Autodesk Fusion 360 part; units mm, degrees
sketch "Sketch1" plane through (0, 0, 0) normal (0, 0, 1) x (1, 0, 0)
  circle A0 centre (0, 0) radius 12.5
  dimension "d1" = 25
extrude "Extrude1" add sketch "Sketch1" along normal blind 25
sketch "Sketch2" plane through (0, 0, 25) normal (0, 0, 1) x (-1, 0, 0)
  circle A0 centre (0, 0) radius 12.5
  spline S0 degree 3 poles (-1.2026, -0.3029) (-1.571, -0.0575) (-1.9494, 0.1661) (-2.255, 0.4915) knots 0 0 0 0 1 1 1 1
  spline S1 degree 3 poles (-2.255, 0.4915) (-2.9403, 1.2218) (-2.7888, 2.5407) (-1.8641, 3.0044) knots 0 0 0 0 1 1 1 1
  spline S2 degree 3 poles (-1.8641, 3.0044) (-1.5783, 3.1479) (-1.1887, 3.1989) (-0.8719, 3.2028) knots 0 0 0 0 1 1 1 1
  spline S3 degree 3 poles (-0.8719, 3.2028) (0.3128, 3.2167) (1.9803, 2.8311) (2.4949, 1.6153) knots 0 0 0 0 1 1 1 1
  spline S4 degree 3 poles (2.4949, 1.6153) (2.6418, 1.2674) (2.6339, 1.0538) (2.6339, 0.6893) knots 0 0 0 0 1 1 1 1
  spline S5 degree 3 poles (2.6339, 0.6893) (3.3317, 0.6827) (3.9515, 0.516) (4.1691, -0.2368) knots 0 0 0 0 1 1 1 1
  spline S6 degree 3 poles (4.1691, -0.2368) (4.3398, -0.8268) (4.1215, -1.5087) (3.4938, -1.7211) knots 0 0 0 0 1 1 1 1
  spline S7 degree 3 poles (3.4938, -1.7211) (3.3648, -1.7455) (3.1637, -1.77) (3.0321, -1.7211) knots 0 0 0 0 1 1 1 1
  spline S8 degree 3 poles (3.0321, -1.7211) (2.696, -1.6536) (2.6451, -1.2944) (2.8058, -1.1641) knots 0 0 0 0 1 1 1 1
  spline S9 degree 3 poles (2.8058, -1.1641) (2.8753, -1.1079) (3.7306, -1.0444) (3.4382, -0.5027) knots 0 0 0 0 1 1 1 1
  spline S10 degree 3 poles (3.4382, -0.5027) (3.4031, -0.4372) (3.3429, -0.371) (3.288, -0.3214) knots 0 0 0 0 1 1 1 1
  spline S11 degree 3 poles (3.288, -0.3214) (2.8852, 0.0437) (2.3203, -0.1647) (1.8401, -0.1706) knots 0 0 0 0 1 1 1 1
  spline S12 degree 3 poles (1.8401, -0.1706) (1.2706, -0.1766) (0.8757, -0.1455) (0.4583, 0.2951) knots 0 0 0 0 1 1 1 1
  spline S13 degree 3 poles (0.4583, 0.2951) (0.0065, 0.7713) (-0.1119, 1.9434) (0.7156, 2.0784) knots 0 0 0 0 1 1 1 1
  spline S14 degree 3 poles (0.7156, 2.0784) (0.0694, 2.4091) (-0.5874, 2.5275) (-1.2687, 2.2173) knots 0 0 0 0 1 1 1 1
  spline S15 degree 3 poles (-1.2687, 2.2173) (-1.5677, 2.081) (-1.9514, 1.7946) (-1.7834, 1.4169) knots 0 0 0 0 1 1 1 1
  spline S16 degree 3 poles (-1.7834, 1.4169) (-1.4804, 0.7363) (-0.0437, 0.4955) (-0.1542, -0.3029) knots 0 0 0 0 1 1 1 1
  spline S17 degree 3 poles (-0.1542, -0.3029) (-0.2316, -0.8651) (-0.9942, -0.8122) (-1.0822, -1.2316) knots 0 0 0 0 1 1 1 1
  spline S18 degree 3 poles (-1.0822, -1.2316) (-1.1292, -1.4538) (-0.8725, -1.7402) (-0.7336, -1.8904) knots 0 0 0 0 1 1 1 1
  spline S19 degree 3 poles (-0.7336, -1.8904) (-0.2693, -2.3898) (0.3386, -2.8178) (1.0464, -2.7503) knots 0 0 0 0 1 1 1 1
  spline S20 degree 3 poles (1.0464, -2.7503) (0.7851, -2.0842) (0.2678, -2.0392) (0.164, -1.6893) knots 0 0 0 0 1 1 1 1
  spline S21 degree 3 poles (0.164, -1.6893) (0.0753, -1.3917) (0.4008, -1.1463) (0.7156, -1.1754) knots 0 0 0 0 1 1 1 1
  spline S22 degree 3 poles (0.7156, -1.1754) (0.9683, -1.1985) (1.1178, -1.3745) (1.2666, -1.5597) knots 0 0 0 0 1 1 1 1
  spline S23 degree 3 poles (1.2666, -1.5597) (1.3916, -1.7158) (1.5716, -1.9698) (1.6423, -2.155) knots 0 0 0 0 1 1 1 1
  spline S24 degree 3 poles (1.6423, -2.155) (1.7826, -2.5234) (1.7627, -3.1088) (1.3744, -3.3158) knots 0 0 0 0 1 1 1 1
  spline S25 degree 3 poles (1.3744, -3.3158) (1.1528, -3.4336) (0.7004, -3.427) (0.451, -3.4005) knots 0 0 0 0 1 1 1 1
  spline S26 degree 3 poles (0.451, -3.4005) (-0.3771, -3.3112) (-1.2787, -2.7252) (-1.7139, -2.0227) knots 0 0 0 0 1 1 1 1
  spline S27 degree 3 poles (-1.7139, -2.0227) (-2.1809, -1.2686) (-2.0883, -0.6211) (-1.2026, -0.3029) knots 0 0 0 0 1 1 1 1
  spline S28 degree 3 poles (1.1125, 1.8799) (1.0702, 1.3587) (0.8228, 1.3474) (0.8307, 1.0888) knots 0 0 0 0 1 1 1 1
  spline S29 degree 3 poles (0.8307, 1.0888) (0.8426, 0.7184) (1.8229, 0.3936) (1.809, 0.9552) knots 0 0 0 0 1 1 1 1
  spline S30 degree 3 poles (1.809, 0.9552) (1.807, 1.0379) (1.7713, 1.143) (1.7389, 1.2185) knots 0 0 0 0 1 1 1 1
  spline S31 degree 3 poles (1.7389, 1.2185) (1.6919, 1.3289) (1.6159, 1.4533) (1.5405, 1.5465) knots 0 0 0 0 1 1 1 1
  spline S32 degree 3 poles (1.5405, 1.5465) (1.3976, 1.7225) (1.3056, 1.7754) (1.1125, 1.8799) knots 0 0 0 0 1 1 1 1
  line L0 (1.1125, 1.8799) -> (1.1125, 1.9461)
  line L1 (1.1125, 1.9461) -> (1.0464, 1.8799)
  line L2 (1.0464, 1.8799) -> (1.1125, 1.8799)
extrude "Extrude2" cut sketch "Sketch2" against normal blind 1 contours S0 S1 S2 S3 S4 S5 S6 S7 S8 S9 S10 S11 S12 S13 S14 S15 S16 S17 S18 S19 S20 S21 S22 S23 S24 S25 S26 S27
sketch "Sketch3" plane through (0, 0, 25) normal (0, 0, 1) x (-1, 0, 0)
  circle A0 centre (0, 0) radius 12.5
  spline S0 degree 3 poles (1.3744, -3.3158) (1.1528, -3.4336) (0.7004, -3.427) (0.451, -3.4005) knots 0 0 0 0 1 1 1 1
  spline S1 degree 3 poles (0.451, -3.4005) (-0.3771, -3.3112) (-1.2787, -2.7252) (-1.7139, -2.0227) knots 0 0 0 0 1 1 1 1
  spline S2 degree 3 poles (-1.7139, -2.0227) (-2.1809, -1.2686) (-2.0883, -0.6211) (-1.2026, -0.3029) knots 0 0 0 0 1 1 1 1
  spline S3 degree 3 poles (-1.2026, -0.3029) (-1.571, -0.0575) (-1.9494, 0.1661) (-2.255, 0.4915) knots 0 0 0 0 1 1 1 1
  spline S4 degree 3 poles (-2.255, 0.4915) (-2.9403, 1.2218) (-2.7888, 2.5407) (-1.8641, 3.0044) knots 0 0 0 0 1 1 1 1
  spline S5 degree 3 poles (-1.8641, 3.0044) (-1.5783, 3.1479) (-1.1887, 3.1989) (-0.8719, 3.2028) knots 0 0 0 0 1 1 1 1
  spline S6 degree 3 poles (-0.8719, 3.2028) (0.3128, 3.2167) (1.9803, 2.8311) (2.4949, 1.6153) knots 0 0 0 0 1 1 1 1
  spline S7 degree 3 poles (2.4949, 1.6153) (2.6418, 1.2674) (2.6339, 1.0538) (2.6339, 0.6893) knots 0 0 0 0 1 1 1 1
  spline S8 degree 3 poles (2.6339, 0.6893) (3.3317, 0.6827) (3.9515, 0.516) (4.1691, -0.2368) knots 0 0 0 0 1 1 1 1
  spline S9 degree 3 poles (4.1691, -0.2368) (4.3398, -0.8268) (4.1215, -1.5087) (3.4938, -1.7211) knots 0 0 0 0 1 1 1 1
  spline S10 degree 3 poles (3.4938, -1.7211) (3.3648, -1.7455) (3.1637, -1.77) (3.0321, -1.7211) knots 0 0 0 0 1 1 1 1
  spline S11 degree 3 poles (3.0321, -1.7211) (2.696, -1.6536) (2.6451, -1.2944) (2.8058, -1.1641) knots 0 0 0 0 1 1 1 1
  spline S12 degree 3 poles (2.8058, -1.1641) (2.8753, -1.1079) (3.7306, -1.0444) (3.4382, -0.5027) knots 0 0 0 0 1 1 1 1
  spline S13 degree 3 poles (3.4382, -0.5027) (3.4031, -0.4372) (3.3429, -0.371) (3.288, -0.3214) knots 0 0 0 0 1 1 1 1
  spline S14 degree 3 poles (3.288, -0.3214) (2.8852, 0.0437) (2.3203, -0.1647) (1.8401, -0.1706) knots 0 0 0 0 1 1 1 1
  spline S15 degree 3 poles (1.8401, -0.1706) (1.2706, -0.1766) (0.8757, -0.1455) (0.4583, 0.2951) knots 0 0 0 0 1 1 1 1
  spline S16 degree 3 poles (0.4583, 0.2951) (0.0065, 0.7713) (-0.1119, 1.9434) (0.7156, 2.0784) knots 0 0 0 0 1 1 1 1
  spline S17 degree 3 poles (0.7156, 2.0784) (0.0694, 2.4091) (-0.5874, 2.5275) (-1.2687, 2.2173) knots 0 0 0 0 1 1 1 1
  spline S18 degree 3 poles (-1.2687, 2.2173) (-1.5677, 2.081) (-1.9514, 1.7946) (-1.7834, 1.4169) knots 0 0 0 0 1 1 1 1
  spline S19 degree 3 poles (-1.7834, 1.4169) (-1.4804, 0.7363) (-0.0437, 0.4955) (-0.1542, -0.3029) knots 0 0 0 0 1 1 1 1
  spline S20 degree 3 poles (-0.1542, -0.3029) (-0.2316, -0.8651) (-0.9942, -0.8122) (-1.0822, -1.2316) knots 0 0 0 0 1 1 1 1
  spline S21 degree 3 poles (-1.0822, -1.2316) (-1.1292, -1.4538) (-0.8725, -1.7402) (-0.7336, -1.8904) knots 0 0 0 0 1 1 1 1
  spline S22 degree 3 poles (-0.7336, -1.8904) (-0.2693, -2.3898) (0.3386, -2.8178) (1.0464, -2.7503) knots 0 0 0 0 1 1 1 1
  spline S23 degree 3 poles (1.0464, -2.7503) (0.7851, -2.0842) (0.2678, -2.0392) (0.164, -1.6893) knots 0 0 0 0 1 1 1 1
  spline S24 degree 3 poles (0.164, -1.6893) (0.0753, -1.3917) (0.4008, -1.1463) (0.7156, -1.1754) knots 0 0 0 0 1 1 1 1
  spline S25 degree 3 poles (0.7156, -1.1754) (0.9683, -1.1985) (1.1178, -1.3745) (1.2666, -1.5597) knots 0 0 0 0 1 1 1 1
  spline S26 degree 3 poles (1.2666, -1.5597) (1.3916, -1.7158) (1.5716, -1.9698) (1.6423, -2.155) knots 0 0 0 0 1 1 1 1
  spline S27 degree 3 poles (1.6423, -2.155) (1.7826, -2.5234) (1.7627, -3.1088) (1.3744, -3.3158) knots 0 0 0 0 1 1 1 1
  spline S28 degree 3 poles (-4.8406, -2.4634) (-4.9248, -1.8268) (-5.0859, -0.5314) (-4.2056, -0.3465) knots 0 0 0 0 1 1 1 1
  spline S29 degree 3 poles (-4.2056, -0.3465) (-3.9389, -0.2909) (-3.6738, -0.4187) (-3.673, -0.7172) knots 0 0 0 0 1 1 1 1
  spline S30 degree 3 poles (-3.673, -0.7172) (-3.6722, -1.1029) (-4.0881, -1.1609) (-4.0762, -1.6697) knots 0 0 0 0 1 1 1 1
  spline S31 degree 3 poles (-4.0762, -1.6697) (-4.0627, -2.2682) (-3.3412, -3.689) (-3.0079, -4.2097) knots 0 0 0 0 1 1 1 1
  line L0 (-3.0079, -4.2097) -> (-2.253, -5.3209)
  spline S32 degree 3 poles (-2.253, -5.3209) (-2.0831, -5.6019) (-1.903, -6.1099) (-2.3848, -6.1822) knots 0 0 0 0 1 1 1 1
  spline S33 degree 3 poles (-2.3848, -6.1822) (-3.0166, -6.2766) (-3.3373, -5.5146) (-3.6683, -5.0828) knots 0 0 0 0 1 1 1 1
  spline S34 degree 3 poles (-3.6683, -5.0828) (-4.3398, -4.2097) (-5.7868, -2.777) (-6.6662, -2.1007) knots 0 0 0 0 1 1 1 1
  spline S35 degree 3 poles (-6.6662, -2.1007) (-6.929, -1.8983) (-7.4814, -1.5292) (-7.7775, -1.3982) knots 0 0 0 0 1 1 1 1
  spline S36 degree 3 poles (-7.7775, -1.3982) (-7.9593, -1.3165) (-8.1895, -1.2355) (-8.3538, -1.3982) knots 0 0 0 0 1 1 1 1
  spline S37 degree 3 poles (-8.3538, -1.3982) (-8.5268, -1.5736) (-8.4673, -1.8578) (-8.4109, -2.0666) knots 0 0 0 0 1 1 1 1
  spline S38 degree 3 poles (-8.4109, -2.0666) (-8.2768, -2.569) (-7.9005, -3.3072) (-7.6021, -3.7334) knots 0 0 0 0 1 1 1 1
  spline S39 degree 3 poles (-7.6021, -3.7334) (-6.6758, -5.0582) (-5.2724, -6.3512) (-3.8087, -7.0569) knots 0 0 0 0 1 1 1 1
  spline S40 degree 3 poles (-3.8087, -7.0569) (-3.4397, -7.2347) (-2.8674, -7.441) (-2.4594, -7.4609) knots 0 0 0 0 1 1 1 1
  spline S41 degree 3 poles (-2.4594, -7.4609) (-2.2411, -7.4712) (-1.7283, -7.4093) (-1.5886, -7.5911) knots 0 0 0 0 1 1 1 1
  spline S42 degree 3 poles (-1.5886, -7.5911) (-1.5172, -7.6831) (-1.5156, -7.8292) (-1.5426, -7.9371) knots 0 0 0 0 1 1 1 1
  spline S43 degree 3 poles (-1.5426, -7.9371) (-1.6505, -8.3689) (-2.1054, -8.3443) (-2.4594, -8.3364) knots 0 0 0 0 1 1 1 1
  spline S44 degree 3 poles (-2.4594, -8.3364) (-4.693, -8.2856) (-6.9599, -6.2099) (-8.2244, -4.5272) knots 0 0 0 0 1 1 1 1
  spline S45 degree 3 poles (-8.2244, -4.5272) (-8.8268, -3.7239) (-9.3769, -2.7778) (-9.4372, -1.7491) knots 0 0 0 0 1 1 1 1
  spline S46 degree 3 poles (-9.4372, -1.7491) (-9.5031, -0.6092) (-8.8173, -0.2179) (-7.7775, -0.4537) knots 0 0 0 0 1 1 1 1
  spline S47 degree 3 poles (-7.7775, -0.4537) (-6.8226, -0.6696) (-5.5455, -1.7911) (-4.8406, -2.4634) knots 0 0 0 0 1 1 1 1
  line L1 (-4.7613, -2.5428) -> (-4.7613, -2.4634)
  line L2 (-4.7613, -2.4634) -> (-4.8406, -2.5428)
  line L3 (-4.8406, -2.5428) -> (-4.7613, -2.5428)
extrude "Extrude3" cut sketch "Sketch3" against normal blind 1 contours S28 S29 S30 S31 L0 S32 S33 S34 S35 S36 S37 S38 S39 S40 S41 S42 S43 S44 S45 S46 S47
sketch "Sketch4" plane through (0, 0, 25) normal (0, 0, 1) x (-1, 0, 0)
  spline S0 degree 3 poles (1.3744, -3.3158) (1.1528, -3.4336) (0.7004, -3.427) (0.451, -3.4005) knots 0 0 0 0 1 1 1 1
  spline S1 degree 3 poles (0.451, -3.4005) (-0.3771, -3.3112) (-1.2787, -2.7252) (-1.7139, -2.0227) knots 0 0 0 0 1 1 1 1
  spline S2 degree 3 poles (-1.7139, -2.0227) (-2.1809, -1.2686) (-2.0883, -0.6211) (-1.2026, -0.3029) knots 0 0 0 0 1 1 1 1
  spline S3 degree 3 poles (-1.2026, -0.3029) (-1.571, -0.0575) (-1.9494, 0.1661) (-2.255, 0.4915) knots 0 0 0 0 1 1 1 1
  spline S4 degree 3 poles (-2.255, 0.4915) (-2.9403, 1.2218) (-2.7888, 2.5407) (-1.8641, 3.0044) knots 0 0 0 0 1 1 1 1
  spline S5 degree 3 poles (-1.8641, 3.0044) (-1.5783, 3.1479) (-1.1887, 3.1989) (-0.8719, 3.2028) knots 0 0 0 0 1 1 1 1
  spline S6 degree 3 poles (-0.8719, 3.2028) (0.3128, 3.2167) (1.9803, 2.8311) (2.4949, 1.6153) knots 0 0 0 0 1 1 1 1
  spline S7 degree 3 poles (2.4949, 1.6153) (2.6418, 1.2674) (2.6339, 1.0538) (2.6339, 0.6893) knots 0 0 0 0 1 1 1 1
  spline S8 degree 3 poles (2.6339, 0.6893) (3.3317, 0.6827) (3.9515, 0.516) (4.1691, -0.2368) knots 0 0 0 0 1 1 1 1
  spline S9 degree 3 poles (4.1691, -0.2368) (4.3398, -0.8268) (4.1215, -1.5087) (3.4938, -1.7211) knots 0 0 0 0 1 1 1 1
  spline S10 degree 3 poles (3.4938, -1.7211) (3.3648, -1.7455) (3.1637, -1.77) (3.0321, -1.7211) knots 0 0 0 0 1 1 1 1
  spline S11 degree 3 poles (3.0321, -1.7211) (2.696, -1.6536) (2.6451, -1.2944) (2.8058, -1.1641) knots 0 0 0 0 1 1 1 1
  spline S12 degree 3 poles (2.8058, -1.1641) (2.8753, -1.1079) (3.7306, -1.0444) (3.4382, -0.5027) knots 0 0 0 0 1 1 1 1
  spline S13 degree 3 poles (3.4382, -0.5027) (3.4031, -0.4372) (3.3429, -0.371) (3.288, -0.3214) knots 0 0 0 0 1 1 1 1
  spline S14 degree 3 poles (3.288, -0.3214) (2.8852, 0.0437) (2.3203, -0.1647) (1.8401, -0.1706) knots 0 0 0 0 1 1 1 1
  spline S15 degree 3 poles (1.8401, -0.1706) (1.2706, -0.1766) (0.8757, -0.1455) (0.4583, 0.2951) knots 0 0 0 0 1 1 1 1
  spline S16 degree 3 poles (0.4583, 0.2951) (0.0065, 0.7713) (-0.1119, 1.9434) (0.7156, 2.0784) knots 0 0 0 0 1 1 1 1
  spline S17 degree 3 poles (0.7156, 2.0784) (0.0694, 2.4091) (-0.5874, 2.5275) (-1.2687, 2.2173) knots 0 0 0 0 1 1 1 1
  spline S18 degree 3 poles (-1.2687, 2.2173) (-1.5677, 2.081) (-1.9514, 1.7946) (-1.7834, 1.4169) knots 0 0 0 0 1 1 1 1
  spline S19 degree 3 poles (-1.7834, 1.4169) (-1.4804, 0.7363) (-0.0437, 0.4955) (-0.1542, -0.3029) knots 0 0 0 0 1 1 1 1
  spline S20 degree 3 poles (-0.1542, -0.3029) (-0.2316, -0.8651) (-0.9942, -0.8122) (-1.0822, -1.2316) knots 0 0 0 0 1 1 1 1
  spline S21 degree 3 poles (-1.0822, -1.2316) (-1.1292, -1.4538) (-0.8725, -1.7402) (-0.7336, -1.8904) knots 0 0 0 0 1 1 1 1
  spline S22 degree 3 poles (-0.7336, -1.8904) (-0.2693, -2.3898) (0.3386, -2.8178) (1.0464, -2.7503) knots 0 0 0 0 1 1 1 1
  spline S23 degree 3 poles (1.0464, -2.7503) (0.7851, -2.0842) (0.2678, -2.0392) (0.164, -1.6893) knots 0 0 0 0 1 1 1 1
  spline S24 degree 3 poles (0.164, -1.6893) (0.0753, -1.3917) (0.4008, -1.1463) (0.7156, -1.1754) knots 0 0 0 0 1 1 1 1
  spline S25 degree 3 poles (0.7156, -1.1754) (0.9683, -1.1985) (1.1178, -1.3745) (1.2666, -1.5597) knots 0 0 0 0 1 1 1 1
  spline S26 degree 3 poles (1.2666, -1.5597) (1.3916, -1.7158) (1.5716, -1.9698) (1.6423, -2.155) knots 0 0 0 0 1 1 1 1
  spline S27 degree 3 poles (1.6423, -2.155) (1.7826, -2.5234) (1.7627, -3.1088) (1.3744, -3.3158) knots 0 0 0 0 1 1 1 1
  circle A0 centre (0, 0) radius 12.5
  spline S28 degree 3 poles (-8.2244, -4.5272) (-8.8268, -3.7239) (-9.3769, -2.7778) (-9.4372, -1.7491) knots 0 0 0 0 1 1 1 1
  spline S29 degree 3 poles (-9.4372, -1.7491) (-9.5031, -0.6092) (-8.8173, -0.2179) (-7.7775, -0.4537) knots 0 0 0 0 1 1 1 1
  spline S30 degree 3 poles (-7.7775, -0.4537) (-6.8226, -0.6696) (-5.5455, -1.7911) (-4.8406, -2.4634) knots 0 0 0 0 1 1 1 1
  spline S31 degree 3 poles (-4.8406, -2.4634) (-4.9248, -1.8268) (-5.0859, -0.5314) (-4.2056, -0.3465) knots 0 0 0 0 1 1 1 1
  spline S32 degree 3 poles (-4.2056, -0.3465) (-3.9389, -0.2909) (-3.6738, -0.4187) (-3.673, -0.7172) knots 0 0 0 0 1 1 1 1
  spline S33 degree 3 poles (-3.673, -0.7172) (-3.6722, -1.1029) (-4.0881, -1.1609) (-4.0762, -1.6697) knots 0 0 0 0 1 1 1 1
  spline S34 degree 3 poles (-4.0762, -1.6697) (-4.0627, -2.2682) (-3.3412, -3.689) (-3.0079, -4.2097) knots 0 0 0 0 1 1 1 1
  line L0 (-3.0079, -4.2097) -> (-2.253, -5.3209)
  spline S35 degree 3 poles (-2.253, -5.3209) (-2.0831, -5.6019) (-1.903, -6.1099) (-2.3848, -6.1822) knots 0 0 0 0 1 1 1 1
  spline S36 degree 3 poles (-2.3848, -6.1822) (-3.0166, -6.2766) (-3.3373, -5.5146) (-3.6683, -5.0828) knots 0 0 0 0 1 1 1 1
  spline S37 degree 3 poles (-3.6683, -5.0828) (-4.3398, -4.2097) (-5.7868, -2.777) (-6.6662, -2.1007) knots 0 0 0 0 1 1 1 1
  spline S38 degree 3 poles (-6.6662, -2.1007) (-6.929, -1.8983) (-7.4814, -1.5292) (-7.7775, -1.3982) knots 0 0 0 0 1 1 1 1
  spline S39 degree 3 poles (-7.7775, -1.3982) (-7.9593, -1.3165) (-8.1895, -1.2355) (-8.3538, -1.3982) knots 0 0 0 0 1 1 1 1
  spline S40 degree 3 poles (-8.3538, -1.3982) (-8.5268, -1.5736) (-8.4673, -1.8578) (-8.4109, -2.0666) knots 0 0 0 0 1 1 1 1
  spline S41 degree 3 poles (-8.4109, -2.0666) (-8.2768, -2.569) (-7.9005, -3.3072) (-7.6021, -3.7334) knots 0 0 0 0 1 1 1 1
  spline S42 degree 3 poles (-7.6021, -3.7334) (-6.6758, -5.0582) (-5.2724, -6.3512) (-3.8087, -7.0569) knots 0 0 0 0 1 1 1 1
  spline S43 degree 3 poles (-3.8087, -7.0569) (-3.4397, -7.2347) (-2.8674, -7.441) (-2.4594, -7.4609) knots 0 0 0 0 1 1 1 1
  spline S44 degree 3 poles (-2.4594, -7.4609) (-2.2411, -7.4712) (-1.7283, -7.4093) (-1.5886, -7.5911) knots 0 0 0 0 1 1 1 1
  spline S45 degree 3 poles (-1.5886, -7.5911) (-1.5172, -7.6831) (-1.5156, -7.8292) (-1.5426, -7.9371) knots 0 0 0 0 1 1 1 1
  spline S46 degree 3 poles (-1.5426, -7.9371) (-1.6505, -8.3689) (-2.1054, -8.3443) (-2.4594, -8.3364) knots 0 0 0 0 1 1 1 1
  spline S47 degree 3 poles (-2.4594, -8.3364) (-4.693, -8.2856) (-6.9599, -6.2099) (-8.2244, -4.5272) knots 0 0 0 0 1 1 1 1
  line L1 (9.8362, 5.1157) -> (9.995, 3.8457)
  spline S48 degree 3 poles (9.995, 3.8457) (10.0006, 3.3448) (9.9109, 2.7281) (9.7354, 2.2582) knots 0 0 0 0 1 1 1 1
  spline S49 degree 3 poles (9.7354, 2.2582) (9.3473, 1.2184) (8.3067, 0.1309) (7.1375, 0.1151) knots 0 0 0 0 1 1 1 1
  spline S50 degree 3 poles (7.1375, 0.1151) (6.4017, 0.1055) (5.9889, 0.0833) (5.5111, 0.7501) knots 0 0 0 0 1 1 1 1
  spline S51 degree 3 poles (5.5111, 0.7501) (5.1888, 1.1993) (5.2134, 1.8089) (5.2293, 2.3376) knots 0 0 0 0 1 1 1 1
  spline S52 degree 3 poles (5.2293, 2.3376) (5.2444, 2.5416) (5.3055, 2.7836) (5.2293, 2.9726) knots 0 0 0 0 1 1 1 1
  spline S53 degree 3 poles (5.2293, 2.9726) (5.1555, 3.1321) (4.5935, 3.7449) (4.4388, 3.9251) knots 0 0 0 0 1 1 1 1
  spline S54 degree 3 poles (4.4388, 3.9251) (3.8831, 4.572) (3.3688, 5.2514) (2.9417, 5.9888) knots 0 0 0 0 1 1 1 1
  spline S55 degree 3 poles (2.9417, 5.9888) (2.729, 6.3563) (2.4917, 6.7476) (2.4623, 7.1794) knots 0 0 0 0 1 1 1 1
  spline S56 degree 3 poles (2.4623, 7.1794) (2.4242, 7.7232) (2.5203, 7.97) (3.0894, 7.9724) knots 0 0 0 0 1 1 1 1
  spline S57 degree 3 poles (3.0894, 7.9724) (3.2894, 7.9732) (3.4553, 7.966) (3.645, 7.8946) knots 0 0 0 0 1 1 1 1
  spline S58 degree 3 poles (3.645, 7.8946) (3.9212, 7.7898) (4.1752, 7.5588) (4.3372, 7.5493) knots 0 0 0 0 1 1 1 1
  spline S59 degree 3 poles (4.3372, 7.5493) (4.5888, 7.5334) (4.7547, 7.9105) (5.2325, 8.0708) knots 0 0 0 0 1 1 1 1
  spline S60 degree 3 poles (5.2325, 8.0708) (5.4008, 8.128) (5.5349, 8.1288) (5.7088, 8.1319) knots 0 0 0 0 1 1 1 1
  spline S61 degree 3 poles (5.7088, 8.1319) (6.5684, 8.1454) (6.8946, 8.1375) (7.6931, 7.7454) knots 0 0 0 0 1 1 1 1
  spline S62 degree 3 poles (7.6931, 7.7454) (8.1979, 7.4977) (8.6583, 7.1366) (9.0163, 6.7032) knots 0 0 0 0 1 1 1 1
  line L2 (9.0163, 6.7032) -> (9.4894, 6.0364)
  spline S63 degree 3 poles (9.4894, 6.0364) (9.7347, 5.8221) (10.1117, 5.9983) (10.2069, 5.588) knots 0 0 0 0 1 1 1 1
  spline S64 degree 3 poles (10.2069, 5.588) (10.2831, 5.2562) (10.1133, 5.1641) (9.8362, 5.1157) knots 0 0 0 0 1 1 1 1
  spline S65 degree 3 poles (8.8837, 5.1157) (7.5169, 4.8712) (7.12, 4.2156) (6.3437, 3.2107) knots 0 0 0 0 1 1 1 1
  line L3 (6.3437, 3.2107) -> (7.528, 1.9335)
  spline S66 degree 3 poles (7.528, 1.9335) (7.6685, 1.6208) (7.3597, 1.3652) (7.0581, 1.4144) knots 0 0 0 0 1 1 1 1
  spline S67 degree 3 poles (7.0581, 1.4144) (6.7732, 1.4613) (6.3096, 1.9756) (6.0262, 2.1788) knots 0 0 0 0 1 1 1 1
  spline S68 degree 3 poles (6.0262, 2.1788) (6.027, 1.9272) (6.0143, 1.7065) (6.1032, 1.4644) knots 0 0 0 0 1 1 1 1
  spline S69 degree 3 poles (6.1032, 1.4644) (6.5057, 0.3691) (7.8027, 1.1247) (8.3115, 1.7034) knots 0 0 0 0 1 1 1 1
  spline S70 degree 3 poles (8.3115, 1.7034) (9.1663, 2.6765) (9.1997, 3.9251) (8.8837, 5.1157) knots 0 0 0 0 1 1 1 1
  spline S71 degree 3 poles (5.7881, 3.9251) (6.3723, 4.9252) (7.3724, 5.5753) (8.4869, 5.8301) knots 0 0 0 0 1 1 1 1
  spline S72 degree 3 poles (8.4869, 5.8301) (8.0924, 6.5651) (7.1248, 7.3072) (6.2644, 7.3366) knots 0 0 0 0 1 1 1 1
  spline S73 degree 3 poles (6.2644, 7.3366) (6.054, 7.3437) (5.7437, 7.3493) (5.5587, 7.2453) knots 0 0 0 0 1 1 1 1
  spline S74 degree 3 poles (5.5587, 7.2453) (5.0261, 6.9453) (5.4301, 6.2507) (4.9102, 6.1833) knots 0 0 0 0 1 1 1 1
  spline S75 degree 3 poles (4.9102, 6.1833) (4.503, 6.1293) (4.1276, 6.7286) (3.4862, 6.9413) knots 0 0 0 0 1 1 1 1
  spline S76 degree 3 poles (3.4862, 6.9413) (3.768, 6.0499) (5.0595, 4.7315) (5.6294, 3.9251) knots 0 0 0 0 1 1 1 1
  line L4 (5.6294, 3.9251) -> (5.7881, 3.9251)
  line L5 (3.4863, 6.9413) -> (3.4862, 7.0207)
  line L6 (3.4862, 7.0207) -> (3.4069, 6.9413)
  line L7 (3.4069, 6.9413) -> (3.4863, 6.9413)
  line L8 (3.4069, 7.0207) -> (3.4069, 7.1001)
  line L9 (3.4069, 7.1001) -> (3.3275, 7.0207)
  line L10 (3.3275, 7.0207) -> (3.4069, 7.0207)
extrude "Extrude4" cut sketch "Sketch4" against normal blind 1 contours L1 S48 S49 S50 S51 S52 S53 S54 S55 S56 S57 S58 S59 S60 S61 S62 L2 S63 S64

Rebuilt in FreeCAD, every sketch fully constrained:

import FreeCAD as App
import Part
import Sketcher


def add_polygon(sketch, points):
    """Adds a closed chain of lines whose ends are joined by coincident constraints."""
    first, n = sketch.GeometryCount, len(points)
    for a, b in zip(points, points[1:] + points[:1]):
        sketch.addGeometry(Part.LineSegment(App.Vector(*a, 0), App.Vector(*b, 0)), False)
    for i in range(n):
        sketch.addConstraint(Sketcher.Constraint("Coincident", first + i, 2, first + (i + 1) % n, 1))

doc = App.newDocument("Part")
body = doc.addObject("PartDesign::Body", "Body")

# Sketch on XY plane
sketch1 = body.newObject("Sketcher::SketchObject", "Sketch")
sketch1.AttachmentSupport = (doc.getObject("XY_Plane"), [""])
sketch1.MapMode = "FlatFace"
sketch1.addGeometry(Part.Circle(App.Vector(0, 0, 0), App.Vector(0, 0, 1), 12), False)
sketch1.addConstraint([
    Sketcher.Constraint("Coincident", 0, 3, -1, 1),
    Sketcher.Constraint("Diameter", 0, 25.0),
])
pad1 = body.newObject("PartDesign::Pad", "Pad")
pad1.Profile = sketch1
pad1.Length = 25

# Sketch on XY plane
sketch2 = body.newObject("Sketcher::SketchObject", "Sketch001")
sketch2.AttachmentSupport = (doc.getObject("XY_Plane"), [""])
sketch2.MapMode = "FlatFace"
sketch2.AttachmentOffset = App.Placement(App.Vector(0, 0, 25), App.Rotation())
sketch2.addGeometry(Part.BSplineCurve([App.Vector(1.2026, 0.3029, 0), App.Vector(1.571, 0.0575, 0), App.Vector(1.9494, -0.1661, 0), App.Vector(2.255, -0.4915, 0)], [4, 4], [0, 1], False, 3, [1, 1, 1, 1], False), False)  # 0
sketch2.addGeometry(Part.BSplineCurve([App.Vector(1.7139, 2.0227, 0), App.Vector(2.1809, 1.2686, 0), App.Vector(2.0883, 0.6211, 0), App.Vector(1.2026, 0.3029, 0)], [4, 4], [0, 1], False, 3, [1, 1, 1, 1], False), False)  # 1
sketch2.addGeometry(Part.BSplineCurve([App.Vector(-0.451, 3.4005, 0), App.Vector(0.3771, 3.3112, 0), App.Vector(1.2787, 2.7252, 0), App.Vector(1.7139, 2.0227, 0)], [4, 4], [0, 1], False, 3, [1, 1, 1, 1], False), False)  # 2
sketch2.addGeometry(Part.BSplineCurve([App.Vector(-1.3744, 3.3158, 0), App.Vector(-1.1528, 3.4336, 0), App.Vector(-0.7004, 3.427, 0), App.Vector(-0.451, 3.4005, 0)], [4, 4], [0, 1], False, 3, [1, 1, 1, 1], False), False)  # 3
sketch2.addGeometry(Part.BSplineCurve([App.Vector(-1.6423, 2.155, 0), App.Vector(-1.7826, 2.5234, 0), App.Vector(-1.7627, 3.1088, 0), App.Vector(-1.3744, 3.3158, 0)], [4, 4], [0, 1], False, 3, [1, 1, 1, 1], False), False)  # 4
sketch2.addGeometry(Part.BSplineCurve([App.Vector(-1.2666, 1.5597, 0), App.Vector(-1.3916, 1.7158, 0), App.Vector(-1.5716, 1.9698, 0), App.Vector(-1.6423, 2.155, 0)], [4, 4], [0, 1], False, 3, [1, 1, 1, 1], False), False)  # 5
sketch2.addGeometry(Part.BSplineCurve([App.Vector(-0.7156, 1.1754, 0), App.Vector(-0.9683, 1.1985, 0), App.Vector(-1.1178, 1.3745, 0), App.Vector(-1.2666, 1.5597, 0)], [4, 4], [0, 1], False, 3, [1, 1, 1, 1], False), False)  # 6
sketch2.addGeometry(Part.BSplineCurve([App.Vector(-0.164, 1.6893, 0), App.Vector(-0.0753, 1.3917, 0), App.Vector(-0.4008, 1.1463, 0), App.Vector(-0.7156, 1.1754, 0)], [4, 4], [0, 1], False, 3, [1, 1, 1, 1], False), False)  # 7
sketch2.addGeometry(Part.BSplineCurve([App.Vector(-1.0464, 2.7503, 0), App.Vector(-0.7851, 2.0842, 0), App.Vector(-0.2678, 2.0392, 0), App.Vector(-0.164, 1.6893, 0)], [4, 4], [0, 1], False, 3, [1, 1, 1, 1], False), False)  # 8
sketch2.addGeometry(Part.BSplineCurve([App.Vector(0.7336, 1.8904, 0), App.Vector(0.2693, 2.3898, 0), App.Vector(-0.3386, 2.8178, 0), App.Vector(-1.0464, 2.7503, 0)], [4, 4], [0, 1], False, 3, [1, 1, 1, 1], False), False)  # 9
sketch2.addGeometry(Part.BSplineCurve([App.Vector(1.0822, 1.2316, 0), App.Vector(1.1292, 1.4538, 0), App.Vector(0.8725, 1.7402, 0), App.Vector(0.7336, 1.8904, 0)], [4, 4], [0, 1], False, 3, [1, 1, 1, 1], False), False)  # 10
sketch2.addGeometry(Part.BSplineCurve([App.Vector(0.1542, 0.3029, 0), App.Vector(0.2316, 0.8651, 0), App.Vector(0.9942, 0.8122, 0), App.Vector(1.0822, 1.2316, 0)], [4, 4], [0, 1], False, 3, [1, 1, 1, 1], False), False)  # 11
sketch2.addGeometry(Part.BSplineCurve([App.Vector(1.7834, -1.4169, 0), App.Vector(1.4804, -0.7363, 0), App.Vector(0.0437, -0.4955, 0), App.Vector(0.1542, 0.3029, 0)], [4, 4], [0, 1], False, 3, [1, 1, 1, 1], False), False)  # 12
sketch2.addGeometry(Part.BSplineCurve([App.Vector(1.2687, -2.2173, 0), App.Vector(1.5677, -2.081, 0), App.Vector(1.9514, -1.7946, 0), App.Vector(1.7834, -1.4169, 0)], [4, 4], [0, 1], False, 3, [1, 1, 1, 1], False), False)  # 13
sketch2.addGeometry(Part.BSplineCurve([App.Vector(-0.7156, -2.0784, 0), App.Vector(-0.0694, -2.4091, 0), App.Vector(0.5874, -2.5275, 0), App.Vector(1.2687, -2.2173, 0)], [4, 4], [0, 1], False, 3, [1, 1, 1, 1], False), False)  # 14
sketch2.addGeometry(Part.BSplineCurve([App.Vector(-0.4583, -0.2951, 0), App.Vector(-0.0065, -0.7713, 0), App.Vector(0.1119, -1.9434, 0), App.Vector(-0.7156, -2.0784, 0)], [4, 4], [0, 1], False, 3, [1, 1, 1, 1], False), False)  # 15
sketch2.addGeometry(Part.BSplineCurve([App.Vector(-1.8401, 0.1706, 0), App.Vector(-1.2706, 0.1766, 0), App.Vector(-0.8757, 0.1455, 0), App.Vector(-0.4583, -0.2951, 0)], [4, 4], [0, 1], False, 3, [1, 1, 1, 1], False), False)  # 16
sketch2.addGeometry(Part.BSplineCurve([App.Vector(-3.288, 0.3214, 0), App.Vector(-2.8852, -0.0437, 0), App.Vector(-2.3203, 0.1647, 0), App.Vector(-1.8401, 0.1706, 0)], [4, 4], [0, 1], False, 3, [1, 1, 1, 1], False), False)  # 17
sketch2.addGeometry(Part.BSplineCurve([App.Vector(-3.4382, 0.5027, 0), App.Vector(-3.4031, 0.4372, 0), App.Vector(-3.3429, 0.371, 0), App.Vector(-3.288, 0.3214, 0)], [4, 4], [0, 1], False, 3, [1, 1, 1, 1], False), False)  # 18
sketch2.addGeometry(Part.BSplineCurve([App.Vector(-2.8058, 1.1641, 0), App.Vector(-2.8753, 1.1079, 0), App.Vector(-3.7306, 1.0444, 0), App.Vector(-3.4382, 0.5027, 0)], [4, 4], [0, 1], False, 3, [1, 1, 1, 1], False), False)  # 19
sketch2.addGeometry(Part.BSplineCurve([App.Vector(-3.0321, 1.7211, 0), App.Vector(-2.696, 1.6536, 0), App.Vector(-2.6451, 1.2944, 0), App.Vector(-2.8058, 1.1641, 0)], [4, 4], [0, 1], False, 3, [1, 1, 1, 1], False), False)  # 20
sketch2.addGeometry(Part.BSplineCurve([App.Vector(-3.4938, 1.7211, 0), App.Vector(-3.3648, 1.7455, 0), App.Vector(-3.1637, 1.77, 0), App.Vector(-3.0321, 1.7211, 0)], [4, 4], [0, 1], False, 3, [1, 1, 1, 1], False), False)  # 21
sketch2.addGeometry(Part.BSplineCurve([App.Vector(-4.1691, 0.2368, 0), App.Vector(-4.3398, 0.8268, 0), App.Vector(-4.1215, 1.5087, 0), App.Vector(-3.4938, 1.7211, 0)], [4, 4], [0, 1], False, 3, [1, 1, 1, 1], False), False)  # 22
sketch2.addGeometry(Part.BSplineCurve([App.Vector(-2.6339, -0.6893, 0), App.Vector(-3.3317, -0.6827, 0), App.Vector(-3.9515, -0.516, 0), App.Vector(-4.1691, 0.2368, 0)], [4, 4], [0, 1], False, 3, [1, 1, 1, 1], False), False)  # 23
sketch2.addGeometry(Part.BSplineCurve([App.Vector(-2.4949, -1.6153, 0), App.Vector(-2.6418, -1.2674, 0), App.Vector(-2.6339, -1.0538, 0), App.Vector(-2.6339, -0.6893, 0)], [4, 4], [0, 1], False, 3, [1, 1, 1, 1], False), False)  # 24
sketch2.addGeometry(Part.BSplineCurve([App.Vector(0.8719, -3.2028, 0), App.Vector(-0.3128, -3.2167, 0), App.Vector(-1.9803, -2.8311, 0), App.Vector(-2.4949, -1.6153, 0)], [4, 4], [0, 1], False, 3, [1, 1, 1, 1], False), False)  # 25
sketch2.addGeometry(Part.BSplineCurve([App.Vector(1.8641, -3.0044, 0), App.Vector(1.5783, -3.1479, 0), App.Vector(1.1887, -3.1989, 0), App.Vector(0.8719, -3.2028, 0)], [4, 4], [0, 1], False, 3, [1, 1, 1, 1], False), False)  # 26
sketch2.addGeometry(Part.BSplineCurve([App.Vector(2.255, -0.4915, 0), App.Vector(2.9403, -1.2218, 0), App.Vector(2.7888, -2.5407, 0), App.Vector(1.8641, -3.0044, 0)], [4, 4], [0, 1], False, 3, [1, 1, 1, 1], False), False)  # 27
sketch2.addGeometry(Part.BSplineCurve([App.Vector(-1.1125, -1.8799, 0), App.Vector(-1.0702, -1.3587, 0), App.Vector(-0.8228, -1.3474, 0), App.Vector(-0.8307, -1.0888, 0)], [4, 4], [0, 1], False, 3, [1, 1, 1, 1], False), False)  # 28
sketch2.addGeometry(Part.BSplineCurve([App.Vector(-1.5405, -1.5465, 0), App.Vector(-1.3976, -1.7225, 0), App.Vector(-1.3056, -1.7754, 0), App.Vector(-1.1125, -1.8799, 0)], [4, 4], [0, 1], False, 3, [1, 1, 1, 1], False), False)  # 29
sketch2.addGeometry(Part.BSplineCurve([App.Vector(-1.7389, -1.2185, 0), App.Vector(-1.6919, -1.3289, 0), App.Vector(-1.6159, -1.4533, 0), App.Vector(-1.5405, -1.5465, 0)], [4, 4], [0, 1], False, 3, [1, 1, 1, 1], False), False)  # 30
sketch2.addGeometry(Part.BSplineCurve([App.Vector(-1.809, -0.9552, 0), App.Vector(-1.807, -1.0379, 0), App.Vector(-1.7713, -1.143, 0), App.Vector(-1.7389, -1.2185, 0)], [4, 4], [0, 1], False, 3, [1, 1, 1, 1], False), False)  # 31
sketch2.addGeometry(Part.BSplineCurve([App.Vector(-0.8307, -1.0888, 0), App.Vector(-0.8426, -0.7184, 0), App.Vector(-1.8229, -0.3936, 0), App.Vector(-1.809, -0.9552, 0)], [4, 4], [0, 1], False, 3, [1, 1, 1, 1], False), False)  # 32
add_polygon(sketch2, [(-1.1125, -1.9461), (-1.1125, -1.8799), (-1.0464, -1.8799)])  # lines 33-35
sketch2.addConstraint([
    Sketcher.Constraint("Block", 0),
    Sketcher.Constraint("Block", 1),
    Sketcher.Constraint("Block", 2),
    Sketcher.Constraint("Block", 3),
    Sketcher.Constraint("Block", 4),
    Sketcher.Constraint("Block", 5),
    Sketcher.Constraint("Block", 6),
    Sketcher.Constraint("Block", 7),
    Sketcher.Constraint("Block", 8),
    Sketcher.Constraint("Block", 9),
    Sketcher.Constraint("Block", 10),
    Sketcher.Constraint("Block", 11),
    Sketcher.Constraint("Block", 12),
    Sketcher.Constraint("Block", 13),
    Sketcher.Constraint("Block", 14),
    Sketcher.Constraint("Block", 15),
    Sketcher.Constraint("Block", 16),
    Sketcher.Constraint("Block", 17),
    Sketcher.Constraint("Block", 18),
    Sketcher.Constraint("Block", 19),
    Sketcher.Constraint("Block", 20),
    Sketcher.Constraint("Block", 21),
    Sketcher.Constraint("Block", 22),
    Sketcher.Constraint("Block", 23),
    Sketcher.Constraint("Block", 24),
    Sketcher.Constraint("Block", 25),
    Sketcher.Constraint("Block", 26),
    Sketcher.Constraint("Block", 27),
    Sketcher.Constraint("Block", 28),
    Sketcher.Constraint("Block", 29),
    Sketcher.Constraint("Block", 30),
    Sketcher.Constraint("Block", 31),
    Sketcher.Constraint("Block", 32),
    Sketcher.Constraint("Vertical", 33),
    Sketcher.Constraint("Horizontal", 34),
    Sketcher.Constraint("Equal", 34, 33),
    Sketcher.Constraint("DistanceX", 34, 1, 34, 2, 0.066),
    Sketcher.Constraint("DistanceY", 33, 2, -1, 1, 1.88),
    Sketcher.Constraint("DistanceX", 33, 2, -1, 1, 1.1125),
])
pocket1 = body.newObject("PartDesign::Pocket", "Pocket")
pocket1.Profile = sketch2
pocket1.Length = 1

# Sketch on XY plane
sketch3 = body.newObject("Sketcher::SketchObject", "Sketch002")
sketch3.AttachmentSupport = (doc.getObject("XY_Plane"), [""])
sketch3.MapMode = "FlatFace"
sketch3.AttachmentOffset = App.Placement(App.Vector(0, 0, 25), App.Rotation())
sketch3.addGeometry(Part.BSplineCurve([App.Vector(4.8406, 2.4634, 0), App.Vector(4.9248, 1.8268, 0), App.Vector(5.0859, 0.5314, 0), App.Vector(4.2056, 0.3465, 0)], [4, 4], [0, 1], False, 3, [1, 1, 1, 1], False), False)  # 0
sketch3.addGeometry(Part.BSplineCurve([App.Vector(7.7775, 0.4537, 0), App.Vector(6.8226, 0.6696, 0), App.Vector(5.5455, 1.7911, 0), App.Vector(4.8406, 2.4634, 0)], [4, 4], [0, 1], False, 3, [1, 1, 1, 1], False), False)  # 1
sketch3.addGeometry(Part.BSplineCurve([App.Vector(9.4372, 1.7491, 0), App.Vector(9.5031, 0.6092, 0), App.Vector(8.8173, 0.2179, 0), App.Vector(7.7775, 0.4537, 0)], [4, 4], [0, 1], False, 3, [1, 1, 1, 1], False), False)  # 2
sketch3.addGeometry(Part.BSplineCurve([App.Vector(8.2244, 4.5272, 0), App.Vector(8.8268, 3.7239, 0), App.Vector(9.3769, 2.7778, 0), App.Vector(9.4372, 1.7491, 0)], [4, 4], [0, 1], False, 3, [1, 1, 1, 1], False), False)  # 3
sketch3.addGeometry(Part.BSplineCurve([App.Vector(2.4594, 8.3364, 0), App.Vector(4.693, 8.2856, 0), App.Vector(6.9599, 6.2099, 0), App.Vector(8.2244, 4.5272, 0)], [4, 4], [0, 1], False, 3, [1, 1, 1, 1], False), False)  # 4
sketch3.addGeometry(Part.BSplineCurve([App.Vector(1.5426, 7.9371, 0), App.Vector(1.6505, 8.3689, 0), App.Vector(2.1054, 8.3443, 0), App.Vector(2.4594, 8.3364, 0)], [4, 4], [0, 1], False, 3, [1, 1, 1, 1], False), False)  # 5
sketch3.addGeometry(Part.BSplineCurve([App.Vector(1.5886, 7.5911, 0), App.Vector(1.5172, 7.6831, 0), App.Vector(1.5156, 7.8292, 0), App.Vector(1.5426, 7.9371, 0)], [4, 4], [0, 1], False, 3, [1, 1, 1, 1], False), False)  # 6
sketch3.addGeometry(Part.BSplineCurve([App.Vector(2.4594, 7.4609, 0), App.Vector(2.2411, 7.4712, 0), App.Vector(1.7283, 7.4093, 0), App.Vector(1.5886, 7.5911, 0)], [4, 4], [0, 1], False, 3, [1, 1, 1, 1], False), False)  # 7
sketch3.addGeometry(Part.BSplineCurve([App.Vector(3.8087, 7.0569, 0), App.Vector(3.4397, 7.2347, 0), App.Vector(2.8674, 7.441, 0), App.Vector(2.4594, 7.4609, 0)], [4, 4], [0, 1], False, 3, [1, 1, 1, 1], False), False)  # 8
sketch3.addGeometry(Part.BSplineCurve([App.Vector(7.6021, 3.7334, 0), App.Vector(6.6758, 5.0582, 0), App.Vector(5.2724, 6.3512, 0), App.Vector(3.8087, 7.0569, 0)], [4, 4], [0, 1], False, 3, [1, 1, 1, 1], False), False)  # 9
sketch3.addGeometry(Part.BSplineCurve([App.Vector(8.4109, 2.0666, 0), App.Vector(8.2768, 2.569, 0), App.Vector(7.9005, 3.3072, 0), App.Vector(7.6021, 3.7334, 0)], [4, 4], [0, 1], False, 3, [1, 1, 1, 1], False), False)  # 10
sketch3.addGeometry(Part.BSplineCurve([App.Vector(8.3538, 1.3982, 0), App.Vector(8.5268, 1.5736, 0), App.Vector(8.4673, 1.8578, 0), App.Vector(8.4109, 2.0666, 0)], [4, 4], [0, 1], False, 3, [1, 1, 1, 1], False), False)  # 11
sketch3.addGeometry(Part.BSplineCurve([App.Vector(7.7775, 1.3982, 0), App.Vector(7.9593, 1.3165, 0), App.Vector(8.1895, 1.2355, 0), App.Vector(8.3538, 1.3982, 0)], [4, 4], [0, 1], False, 3, [1, 1, 1, 1], False), False)  # 12
sketch3.addGeometry(Part.BSplineCurve([App.Vector(6.6662, 2.1007, 0), App.Vector(6.929, 1.8983, 0), App.Vector(7.4814, 1.5292, 0), App.Vector(7.7775, 1.3982, 0)], [4, 4], [0, 1], False, 3, [1, 1, 1, 1], False), False)  # 13
sketch3.addGeometry(Part.BSplineCurve([App.Vector(3.6683, 5.0828, 0), App.Vector(4.3398, 4.2097, 0), App.Vector(5.7868, 2.777, 0), App.Vector(6.6662, 2.1007, 0)], [4, 4], [0, 1], False, 3, [1, 1, 1, 1], False), False)  # 14
sketch3.addGeometry(Part.BSplineCurve([App.Vector(2.3848, 6.1822, 0), App.Vector(3.0166, 6.2766, 0), App.Vector(3.3373, 5.5146, 0), App.Vector(3.6683, 5.0828, 0)], [4, 4], [0, 1], False, 3, [1, 1, 1, 1], False), False)  # 15
sketch3.addGeometry(Part.BSplineCurve([App.Vector(2.253, 5.3209, 0), App.Vector(2.0831, 5.6019, 0), App.Vector(1.903, 6.1099, 0), App.Vector(2.3848, 6.1822, 0)], [4, 4], [0, 1], False, 3, [1, 1, 1, 1], False), False)  # 16
sketch3.addGeometry(Part.LineSegment(App.Vector(2.253, 5.3209, 0), App.Vector(3.0079, 4.2097, 0)), False)  # 17
sketch3.addGeometry(Part.BSplineCurve([App.Vector(4.0762, 1.6697, 0), App.Vector(4.0627, 2.2682, 0), App.Vector(3.3412, 3.689, 0), App.Vector(3.0079, 4.2097, 0)], [4, 4], [0, 1], False, 3, [1, 1, 1, 1], False), False)  # 18
sketch3.addGeometry(Part.BSplineCurve([App.Vector(3.673, 0.7172, 0), App.Vector(3.6722, 1.1029, 0), App.Vector(4.0881, 1.1609, 0), App.Vector(4.0762, 1.6697, 0)], [4, 4], [0, 1], False, 3, [1, 1, 1, 1], False), False)  # 19
sketch3.addGeometry(Part.BSplineCurve([App.Vector(4.2056, 0.3465, 0), App.Vector(3.9389, 0.2909, 0), App.Vector(3.6738, 0.4187, 0), App.Vector(3.673, 0.7172, 0)], [4, 4], [0, 1], False, 3, [1, 1, 1, 1], False), False)  # 20
add_polygon(sketch3, [(4.7613, 2.4634), (4.7613, 2.5428), (4.8406, 2.5428)])  # lines 21-23
sketch3.addConstraint([
    Sketcher.Constraint("Block", 0),
    Sketcher.Constraint("Block", 1),
    Sketcher.Constraint("Block", 2),
    Sketcher.Constraint("Block", 3),
    Sketcher.Constraint("Block", 4),
    Sketcher.Constraint("Block", 5),
    Sketcher.Constraint("Block", 6),
    Sketcher.Constraint("Block", 7),
    Sketcher.Constraint("Block", 8),
    Sketcher.Constraint("Block", 9),
    Sketcher.Constraint("Block", 10),
    Sketcher.Constraint("Block", 11),
    Sketcher.Constraint("Block", 12),
    Sketcher.Constraint("Block", 13),
    Sketcher.Constraint("Block", 14),
    Sketcher.Constraint("Block", 15),
    Sketcher.Constraint("Block", 16),
    Sketcher.Constraint("Block", 18),
    Sketcher.Constraint("Block", 19),
    Sketcher.Constraint("Block", 20),
    Sketcher.Constraint("Coincident", 16, 1, 17, 1),
    Sketcher.Constraint("Coincident", 17, 2, 18, 2),
    Sketcher.Constraint("Vertical", 21),
    Sketcher.Constraint("Horizontal", 22),
    Sketcher.Constraint("Equal", 22, 21),
    Sketcher.Constraint("DistanceX", 22, 1, 22, 2, 0.0793),
    Sketcher.Constraint("DistanceY", 21, 2, 17, 2, 1.667),
    Sketcher.Constraint("DistanceX", -1, 1, 21, 2, 4.7613),
])
pocket2 = body.newObject("PartDesign::Pocket", "Pocket001")
pocket2.Profile = sketch3
pocket2.Length = 1

# Sketch on XY plane
sketch4 = body.newObject("Sketcher::SketchObject", "Sketch003")
sketch4.AttachmentSupport = (doc.getObject("XY_Plane"), [""])
sketch4.MapMode = "FlatFace"
sketch4.AttachmentOffset = App.Placement(App.Vector(0, 0, 25), App.Rotation())
sketch4.addGeometry(Part.LineSegment(App.Vector(-9.995, -3.8457, 0), App.Vector(-9.8362, -5.1157, 0)), False)  # 0
sketch4.addGeometry(Part.BSplineCurve([App.Vector(-10.2069, -5.588, 0), App.Vector(-10.2831, -5.2562, 0), App.Vector(-10.1133, -5.1641, 0), App.Vector(-9.8362, -5.1157, 0)], [4, 4], [0, 1], False, 3, [1, 1, 1, 1], False), False)  # 1
sketch4.addGeometry(Part.BSplineCurve([App.Vector(-9.4894, -6.0364, 0), App.Vector(-9.7347, -5.8221, 0), App.Vector(-10.1117, -5.9983, 0), App.Vector(-10.2069, -5.588, 0)], [4, 4], [0, 1], False, 3, [1, 1, 1, 1], False), False)  # 2
sketch4.addGeometry(Part.LineSegment(App.Vector(-9.4894, -6.0364, 0), App.Vector(-9.0163, -6.7032, 0)), False)  # 3
sketch4.addGeometry(Part.BSplineCurve([App.Vector(-7.6931, -7.7454, 0), App.Vector(-8.1979, -7.4977, 0), App.Vector(-8.6583, -7.1366, 0), App.Vector(-9.0163, -6.7032, 0)], [4, 4], [0, 1], False, 3, [1, 1, 1, 1], False), False)  # 4
sketch4.addGeometry(Part.BSplineCurve([App.Vector(-5.7088, -8.1319, 0), App.Vector(-6.5684, -8.1454, 0), App.Vector(-6.8946, -8.1375, 0), App.Vector(-7.6931, -7.7454, 0)], [4, 4], [0, 1], False, 3, [1, 1, 1, 1], False), False)  # 5
sketch4.addGeometry(Part.BSplineCurve([App.Vector(-5.2325, -8.0708, 0), App.Vector(-5.4008, -8.128, 0), App.Vector(-5.5349, -8.1288, 0), App.Vector(-5.7088, -8.1319, 0)], [4, 4], [0, 1], False, 3, [1, 1, 1, 1], False), False)  # 6
sketch4.addGeometry(Part.BSplineCurve([App.Vector(-4.3372, -7.5493, 0), App.Vector(-4.5888, -7.5334, 0), App.Vector(-4.7547, -7.9105, 0), App.Vector(-5.2325, -8.0708, 0)], [4, 4], [0, 1], False, 3, [1, 1, 1, 1], False), False)  # 7
sketch4.addGeometry(Part.BSplineCurve([App.Vector(-3.645, -7.8946, 0), App.Vector(-3.9212, -7.7898, 0), App.Vector(-4.1752, -7.5588, 0), App.Vector(-4.3372, -7.5493, 0)], [4, 4], [0, 1], False, 3, [1, 1, 1, 1], False), False)  # 8
sketch4.addGeometry(Part.BSplineCurve([App.Vector(-3.0894, -7.9724, 0), App.Vector(-3.2894, -7.9732, 0), App.Vector(-3.4553, -7.966, 0), App.Vector(-3.645, -7.8946, 0)], [4, 4], [0, 1], False, 3, [1, 1, 1, 1], False), False)  # 9
sketch4.addGeometry(Part.BSplineCurve([App.Vector(-2.4623, -7.1794, 0), App.Vector(-2.4242, -7.7232, 0), App.Vector(-2.5203, -7.97, 0), App.Vector(-3.0894, -7.9724, 0)], [4, 4], [0, 1], False, 3, [1, 1, 1, 1], False), False)  # 10
sketch4.addGeometry(Part.BSplineCurve([App.Vector(-2.9417, -5.9888, 0), App.Vector(-2.729, -6.3563, 0), App.Vector(-2.4917, -6.7476, 0), App.Vector(-2.4623, -7.1794, 0)], [4, 4], [0, 1], False, 3, [1, 1, 1, 1], False), False)  # 11
sketch4.addGeometry(Part.BSplineCurve([App.Vector(-4.4388, -3.9251, 0), App.Vector(-3.8831, -4.572, 0), App.Vector(-3.3688, -5.2514, 0), App.Vector(-2.9417, -5.9888, 0)], [4, 4], [0, 1], False, 3, [1, 1, 1, 1], False), False)  # 12
sketch4.addGeometry(Part.BSplineCurve([App.Vector(-5.2293, -2.9726, 0), App.Vector(-5.1555, -3.1321, 0), App.Vector(-4.5935, -3.7449, 0), App.Vector(-4.4388, -3.9251, 0)], [4, 4], [0, 1], False, 3, [1, 1, 1, 1], False), False)  # 13
sketch4.addGeometry(Part.BSplineCurve([App.Vector(-5.2293, -2.3376, 0), App.Vector(-5.2444, -2.5416, 0), App.Vector(-5.3055, -2.7836, 0), App.Vector(-5.2293, -2.9726, 0)], [4, 4], [0, 1], False, 3, [1, 1, 1, 1], False), False)  # 14
sketch4.addGeometry(Part.BSplineCurve([App.Vector(-5.5111, -0.7501, 0), App.Vector(-5.1888, -1.1993, 0), App.Vector(-5.2134, -1.8089, 0), App.Vector(-5.2293, -2.3376, 0)], [4, 4], [0, 1], False, 3, [1, 1, 1, 1], False), False)  # 15
sketch4.addGeometry(Part.BSplineCurve([App.Vector(-7.1375, -0.1151, 0), App.Vector(-6.4017, -0.1055, 0), App.Vector(-5.9889, -0.0833, 0), App.Vector(-5.5111, -0.7501, 0)], [4, 4], [0, 1], False, 3, [1, 1, 1, 1], False), False)  # 16
sketch4.addGeometry(Part.BSplineCurve([App.Vector(-9.7354, -2.2582, 0), App.Vector(-9.3473, -1.2184, 0), App.Vector(-8.3067, -0.1309, 0), App.Vector(-7.1375, -0.1151, 0)], [4, 4], [0, 1], False, 3, [1, 1, 1, 1], False), False)  # 17
sketch4.addGeometry(Part.BSplineCurve([App.Vector(-9.995, -3.8457, 0), App.Vector(-10.0006, -3.3448, 0), App.Vector(-9.9109, -2.7281, 0), App.Vector(-9.7354, -2.2582, 0)], [4, 4], [0, 1], False, 3, [1, 1, 1, 1], False), False)  # 18
sketch4.addGeometry(Part.BSplineCurve([App.Vector(-5.7881, -3.9251, 0), App.Vector(-6.3723, -4.9252, 0), App.Vector(-7.3724, -5.5753, 0), App.Vector(-8.4869, -5.8301, 0)], [4, 4], [0, 1], False, 3, [1, 1, 1, 1], False), False)  # 19
sketch4.addGeometry(Part.LineSegment(App.Vector(-5.7881, -3.9251, 0), App.Vector(-5.6294, -3.9251, 0)), False)  # 20
sketch4.addGeometry(Part.BSplineCurve([App.Vector(-3.4862, -6.9413, 0), App.Vector(-3.768, -6.0499, 0), App.Vector(-5.0595, -4.7315, 0), App.Vector(-5.6294, -3.9251, 0)], [4, 4], [0, 1], False, 3, [1, 1, 1, 1], False), False)  # 21
sketch4.addGeometry(Part.BSplineCurve([App.Vector(-4.9102, -6.1833, 0), App.Vector(-4.503, -6.1293, 0), App.Vector(-4.1276, -6.7286, 0), App.Vector(-3.4862, -6.9413, 0)], [4, 4], [0, 1], False, 3, [1, 1, 1, 1], False), False)  # 22
sketch4.addGeometry(Part.BSplineCurve([App.Vector(-5.5587, -7.2453, 0), App.Vector(-5.0261, -6.9453, 0), App.Vector(-5.4301, -6.2507, 0), App.Vector(-4.9102, -6.1833, 0)], [4, 4], [0, 1], False, 3, [1, 1, 1, 1], False), False)  # 23
sketch4.addGeometry(Part.BSplineCurve([App.Vector(-6.2644, -7.3366, 0), App.Vector(-6.054, -7.3437, 0), App.Vector(-5.7437, -7.3493, 0), App.Vector(-5.5587, -7.2453, 0)], [4, 4], [0, 1], False, 3, [1, 1, 1, 1], False), False)  # 24
sketch4.addGeometry(Part.BSplineCurve([App.Vector(-8.4869, -5.8301, 0), App.Vector(-8.0924, -6.5651, 0), App.Vector(-7.1248, -7.3072, 0), App.Vector(-6.2644, -7.3366, 0)], [4, 4], [0, 1], False, 3, [1, 1, 1, 1], False), False)  # 25
sketch4.addGeometry(Part.BSplineCurve([App.Vector(-8.8837, -5.1157, 0), App.Vector(-7.5169, -4.8712, 0), App.Vector(-7.12, -4.2156, 0), App.Vector(-6.3437, -3.2107, 0)], [4, 4], [0, 1], False, 3, [1, 1, 1, 1], False), False)  # 26
sketch4.addGeometry(Part.BSplineCurve([App.Vector(-8.3115, -1.7034, 0), App.Vector(-9.1663, -2.6765, 0), App.Vector(-9.1997, -3.9251, 0), App.Vector(-8.8837, -5.1157, 0)], [4, 4], [0, 1], False, 3, [1, 1, 1, 1], False), False)  # 27
sketch4.addGeometry(Part.BSplineCurve([App.Vector(-6.1032, -1.4644, 0), App.Vector(-6.5057, -0.3691, 0), App.Vector(-7.8027, -1.1247, 0), App.Vector(-8.3115, -1.7034, 0)], [4, 4], [0, 1], False, 3, [1, 1, 1, 1], False), False)  # 28
sketch4.addGeometry(Part.BSplineCurve([App.Vector(-6.0262, -2.1788, 0), App.Vector(-6.027, -1.9272, 0), App.Vector(-6.0143, -1.7065, 0), App.Vector(-6.1032, -1.4644, 0)], [4, 4], [0, 1], False, 3, [1, 1, 1, 1], False), False)  # 29
sketch4.addGeometry(Part.BSplineCurve([App.Vector(-7.0581, -1.4144, 0), App.Vector(-6.7732, -1.4613, 0), App.Vector(-6.3096, -1.9756, 0), App.Vector(-6.0262, -2.1788, 0)], [4, 4], [0, 1], False, 3, [1, 1, 1, 1], False), False)  # 30
sketch4.addGeometry(Part.BSplineCurve([App.Vector(-7.528, -1.9335, 0), App.Vector(-7.6685, -1.6208, 0), App.Vector(-7.3597, -1.3652, 0), App.Vector(-7.0581, -1.4144, 0)], [4, 4], [0, 1], False, 3, [1, 1, 1, 1], False), False)  # 31
sketch4.addGeometry(Part.LineSegment(App.Vector(-7.528, -1.9335, 0), App.Vector(-6.3437, -3.2107, 0)), False)  # 32
add_polygon(sketch4, [(-3.4862, -7.0207), (-3.4862, -6.9413), (-3.4069, -6.9413)])  # lines 33-35
add_polygon(sketch4, [(-3.4069, -7.1001), (-3.4069, -7.0207), (-3.3275, -7.0207)])  # lines 36-38
sketch4.addConstraint([
    Sketcher.Constraint("Block", 1),
    Sketcher.Constraint("Block", 2),
    Sketcher.Constraint("Block", 4),
    Sketcher.Constraint("Block", 5),
    Sketcher.Constraint("Block", 6),
    Sketcher.Constraint("Block", 7),
    Sketcher.Constraint("Block", 8),
    Sketcher.Constraint("Block", 9),
    Sketcher.Constraint("Block", 10),
    Sketcher.Constraint("Block", 11),
    Sketcher.Constraint("Block", 12),
    Sketcher.Constraint("Block", 13),
    Sketcher.Constraint("Block", 14),
    Sketcher.Constraint("Block", 15),
    Sketcher.Constraint("Block", 16),
    Sketcher.Constraint("Block", 17),
    Sketcher.Constraint("Block", 18),
    Sketcher.Constraint("Block", 19),
    Sketcher.Constraint("Block", 21),
    Sketcher.Constraint("Block", 22),
    Sketcher.Constraint("Block", 23),
    Sketcher.Constraint("Block", 24),
    Sketcher.Constraint("Block", 25),
    Sketcher.Constraint("Block", 26),
    Sketcher.Constraint("Block", 27),
    Sketcher.Constraint("Block", 28),
    Sketcher.Constraint("Block", 29),
    Sketcher.Constraint("Block", 30),
    Sketcher.Constraint("Block", 31),
    Sketcher.Constraint("Coincident", 0, 2, 1, 2),
    Sketcher.Constraint("Coincident", 2, 1, 3, 1),
    Sketcher.Constraint("Coincident", 3, 2, 4, 2),
    Sketcher.Constraint("Coincident", 18, 1, 0, 1),
    Sketcher.Constraint("Coincident", 19, 1, 20, 1),
    Sketcher.Constraint("Coincident", 20, 2, 21, 2),
    Sketcher.Constraint("Coincident", 31, 1, 32, 1),
    Sketcher.Constraint("Coincident", 32, 2, 26, 2),
    Sketcher.Constraint("Vertical", 33),
    Sketcher.Constraint("Horizontal", 34),
    Sketcher.Constraint("Vertical", 36),
    Sketcher.Constraint("Horizontal", 37),
    Sketcher.Constraint("Horizontal", 35, 2, 36, 2),
    Sketcher.Constraint("Vertical", 34, 2, 36, 2),
    Sketcher.Constraint("Equal", 34, 37),
    Sketcher.Constraint("Equal", 37, 33),
    Sketcher.Constraint("Equal", 33, 36),
    Sketcher.Constraint("DistanceY", 38, 2, -1, 1, 7.1),
    Sketcher.Constraint("DistanceX", 3, 2, 33, 2, 5.53),
    Sketcher.Constraint("DistanceY", 35, 2, 32, 2, 3.81),
])
pocket3 = body.newObject("PartDesign::Pocket", "Pocket002")
pocket3.Profile = sketch4
pocket3.Length = 1

doc.recompute()
